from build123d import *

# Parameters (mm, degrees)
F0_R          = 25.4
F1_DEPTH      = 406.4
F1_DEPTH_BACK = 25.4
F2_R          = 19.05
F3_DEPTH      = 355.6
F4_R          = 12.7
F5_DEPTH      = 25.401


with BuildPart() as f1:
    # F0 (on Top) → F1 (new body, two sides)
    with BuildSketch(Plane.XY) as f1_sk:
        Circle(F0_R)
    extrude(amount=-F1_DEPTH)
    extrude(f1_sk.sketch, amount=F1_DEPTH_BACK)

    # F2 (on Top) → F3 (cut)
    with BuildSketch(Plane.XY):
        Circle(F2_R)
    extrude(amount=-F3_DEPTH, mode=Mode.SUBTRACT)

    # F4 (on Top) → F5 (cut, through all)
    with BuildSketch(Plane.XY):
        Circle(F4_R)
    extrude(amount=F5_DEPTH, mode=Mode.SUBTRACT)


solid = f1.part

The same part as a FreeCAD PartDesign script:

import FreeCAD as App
import Part
import Sketcher

V = App.Vector
Q = App.Units.Quantity

doc = App.newDocument("Part")
body = doc.addObject("PartDesign::Body", "Body")

# Sketch on XY plane
sketch1 = doc.addObject("Sketcher::SketchObject", "Sketch")
body.addObject(sketch1)
sketch1.AttachmentSupport = (doc.XY_Plane, [""])
sketch1.MapMode = "FlatFace"
sketch1.addGeometry(Part.Circle(V(0, 0, 0), V(0, 0, 1), 25), False)
sketch1.addConstraint([
    Sketcher.Constraint("Coincident", 0, 3, -1, 1),
    Sketcher.Constraint("Diameter", 0, Q("2 in")),
])
pad1 = doc.addObject("PartDesign::Pad", "Pad")
body.addObject(pad1)
pad1.Profile = sketch1
pad1.Type = "TwoLengths"
pad1.Length = Q("16 in")
pad1.Length2 = Q("1 in")
pad1.Reversed = True

# Sketch on XY plane
sketch2 = doc.addObject("Sketcher::SketchObject", "Sketch001")
body.addObject(sketch2)
sketch2.AttachmentSupport = (doc.XY_Plane, [""])
sketch2.MapMode = "FlatFace"
sketch2.addGeometry(Part.Circle(V(0, 0, 0), V(0, 0, 1), 19), False)
sketch2.addConstraint([
    Sketcher.Constraint("Coincident", 0, 3, -1, 1),
    Sketcher.Constraint("Diameter", 0, Q("1.5 in")),
])
pocket1 = doc.addObject("PartDesign::Pocket", "Pocket")
body.addObject(pocket1)
pocket1.Profile = sketch2
pocket1.Length = Q("14 in")

# Sketch on XY plane
sketch3 = doc.addObject("Sketcher::SketchObject", "Sketch002")
body.addObject(sketch3)
sketch3.AttachmentSupport = (doc.XY_Plane, [""])
sketch3.MapMode = "FlatFace"
sketch3.addGeometry(Part.Circle(V(0, 0, 0), V(0, 0, 1), 13), False)
sketch3.addConstraint([
    Sketcher.Constraint("Coincident", 0, 3, -1, 1),
    Sketcher.Constraint("Diameter", 0, Q("1 in")),
])
pocket2 = doc.addObject("PartDesign::Pocket", "Pocket001")
body.addObject(pocket2)
pocket2.Profile = sketch3
pocket2.Type = "ThroughAll"
pocket2.Reversed = True

doc.recompute()
